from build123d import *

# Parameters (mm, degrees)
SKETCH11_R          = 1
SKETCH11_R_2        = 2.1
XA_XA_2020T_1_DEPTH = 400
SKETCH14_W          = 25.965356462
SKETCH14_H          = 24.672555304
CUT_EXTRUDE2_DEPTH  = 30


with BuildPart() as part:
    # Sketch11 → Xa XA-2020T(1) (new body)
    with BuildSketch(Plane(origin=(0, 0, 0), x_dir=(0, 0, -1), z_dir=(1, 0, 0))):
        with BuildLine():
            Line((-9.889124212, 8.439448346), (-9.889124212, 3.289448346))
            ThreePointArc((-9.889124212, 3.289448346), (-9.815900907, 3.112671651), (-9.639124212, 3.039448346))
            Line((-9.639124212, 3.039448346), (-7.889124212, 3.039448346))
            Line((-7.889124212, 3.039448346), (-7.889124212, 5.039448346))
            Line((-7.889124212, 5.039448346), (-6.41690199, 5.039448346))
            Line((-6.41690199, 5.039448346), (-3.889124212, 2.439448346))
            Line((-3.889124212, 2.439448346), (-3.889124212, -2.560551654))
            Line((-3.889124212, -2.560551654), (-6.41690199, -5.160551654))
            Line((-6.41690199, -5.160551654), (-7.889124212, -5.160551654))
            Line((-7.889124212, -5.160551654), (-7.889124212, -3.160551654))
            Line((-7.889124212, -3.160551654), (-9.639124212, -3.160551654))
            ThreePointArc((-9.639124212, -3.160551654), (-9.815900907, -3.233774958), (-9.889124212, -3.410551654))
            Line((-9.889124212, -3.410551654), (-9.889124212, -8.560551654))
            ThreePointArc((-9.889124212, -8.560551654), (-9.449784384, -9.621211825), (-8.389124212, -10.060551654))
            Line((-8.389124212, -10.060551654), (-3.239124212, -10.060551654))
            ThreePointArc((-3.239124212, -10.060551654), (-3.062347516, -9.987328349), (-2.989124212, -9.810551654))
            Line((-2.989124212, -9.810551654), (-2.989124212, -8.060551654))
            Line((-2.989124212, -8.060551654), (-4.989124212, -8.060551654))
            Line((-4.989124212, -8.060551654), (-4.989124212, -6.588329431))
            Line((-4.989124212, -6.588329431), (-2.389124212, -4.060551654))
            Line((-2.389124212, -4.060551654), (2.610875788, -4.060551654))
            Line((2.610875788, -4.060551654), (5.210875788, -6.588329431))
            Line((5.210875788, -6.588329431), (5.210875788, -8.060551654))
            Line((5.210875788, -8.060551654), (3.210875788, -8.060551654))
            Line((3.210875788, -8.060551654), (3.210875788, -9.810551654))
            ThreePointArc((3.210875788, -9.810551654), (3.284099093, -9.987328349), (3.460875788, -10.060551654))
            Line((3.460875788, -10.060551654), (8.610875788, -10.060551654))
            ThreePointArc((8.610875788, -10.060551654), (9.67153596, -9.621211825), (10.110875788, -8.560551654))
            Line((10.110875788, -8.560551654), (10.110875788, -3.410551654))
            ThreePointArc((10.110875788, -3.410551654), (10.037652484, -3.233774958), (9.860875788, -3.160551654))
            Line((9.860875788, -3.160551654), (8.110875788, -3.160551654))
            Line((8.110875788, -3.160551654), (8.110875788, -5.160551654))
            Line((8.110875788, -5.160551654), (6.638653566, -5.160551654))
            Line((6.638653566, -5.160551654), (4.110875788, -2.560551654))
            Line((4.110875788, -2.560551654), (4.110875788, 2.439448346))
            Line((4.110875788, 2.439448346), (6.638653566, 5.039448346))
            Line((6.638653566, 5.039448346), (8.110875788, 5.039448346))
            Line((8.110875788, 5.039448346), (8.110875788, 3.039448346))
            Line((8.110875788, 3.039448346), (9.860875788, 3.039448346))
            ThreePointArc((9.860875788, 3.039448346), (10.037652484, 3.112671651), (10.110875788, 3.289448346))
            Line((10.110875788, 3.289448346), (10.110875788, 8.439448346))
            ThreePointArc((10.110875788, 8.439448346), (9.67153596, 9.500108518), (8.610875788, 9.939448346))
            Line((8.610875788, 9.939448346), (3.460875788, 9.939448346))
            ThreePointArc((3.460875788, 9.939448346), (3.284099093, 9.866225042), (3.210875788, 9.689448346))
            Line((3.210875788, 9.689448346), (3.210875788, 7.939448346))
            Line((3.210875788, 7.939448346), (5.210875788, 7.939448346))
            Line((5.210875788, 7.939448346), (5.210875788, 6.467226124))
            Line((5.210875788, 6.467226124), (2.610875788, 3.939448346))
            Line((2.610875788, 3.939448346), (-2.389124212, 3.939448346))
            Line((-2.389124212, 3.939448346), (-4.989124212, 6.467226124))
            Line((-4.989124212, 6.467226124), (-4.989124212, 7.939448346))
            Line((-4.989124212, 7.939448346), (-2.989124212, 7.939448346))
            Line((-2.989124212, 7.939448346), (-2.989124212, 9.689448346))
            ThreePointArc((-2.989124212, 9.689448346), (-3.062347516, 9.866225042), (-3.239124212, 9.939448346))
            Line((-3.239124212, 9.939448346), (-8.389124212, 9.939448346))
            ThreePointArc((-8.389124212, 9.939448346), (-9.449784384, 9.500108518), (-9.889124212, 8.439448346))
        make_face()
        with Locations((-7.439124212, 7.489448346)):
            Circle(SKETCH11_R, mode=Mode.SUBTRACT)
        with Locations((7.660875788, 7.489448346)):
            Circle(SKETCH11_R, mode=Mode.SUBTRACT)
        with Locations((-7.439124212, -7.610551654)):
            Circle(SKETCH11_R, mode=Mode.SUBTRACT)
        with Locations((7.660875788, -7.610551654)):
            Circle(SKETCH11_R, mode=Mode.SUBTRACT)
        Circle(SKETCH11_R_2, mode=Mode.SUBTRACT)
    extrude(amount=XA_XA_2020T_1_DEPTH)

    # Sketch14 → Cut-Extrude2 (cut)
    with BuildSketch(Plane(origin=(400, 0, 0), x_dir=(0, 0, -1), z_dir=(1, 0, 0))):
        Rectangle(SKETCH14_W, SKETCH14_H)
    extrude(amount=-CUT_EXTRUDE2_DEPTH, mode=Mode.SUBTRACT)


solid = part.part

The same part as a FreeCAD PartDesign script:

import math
import FreeCAD as App
import Part
import Sketcher
Q = App.Units.Quantity


def add_polygon(sketch, points):
    """Adds a closed chain of lines whose ends are joined by coincident constraints."""
    first, n = sketch.GeometryCount, len(points)
    for a, b in zip(points, points[1:] + points[:1]):
        sketch.addGeometry(Part.LineSegment(App.Vector(*a, 0), App.Vector(*b, 0)), False)
    for i in range(n):
        sketch.addConstraint(Sketcher.Constraint("Coincident", first + i, 2, first + (i + 1) % n, 1))

doc = App.newDocument("Part")
body = doc.addObject("PartDesign::Body", "Body")

# Sketch on YZ plane
sketch1 = body.newObject("Sketcher::SketchObject", "Sketch")
sketch1.AttachmentSupport = (doc.getObject("YZ_Plane"), [""])
sketch1.MapMode = "FlatFace"
sketch1.addGeometry([
    Part.LineSegment(App.Vector(8.44, 9.89, 0), App.Vector(3.29, 9.89, 0)),  # 0
    Part.ArcOfCircle(Part.Circle(App.Vector(3.29, 9.64, 0), App.Vector(0, 0, 1), 0.25), math.radians(90), math.radians(180)),  # 1
    Part.LineSegment(App.Vector(3.04, 9.64, 0), App.Vector(3.04, 7.89, 0)),  # 2
    Part.LineSegment(App.Vector(3.04, 7.89, 0), App.Vector(5.04, 7.89, 0)),  # 3
    Part.LineSegment(App.Vector(5.04, 7.89, 0), App.Vector(5.04, 6.42, 0)),  # 4
    Part.LineSegment(App.Vector(5.04, 6.42, 0), App.Vector(2.44, 3.89, 0)),  # 5
    Part.LineSegment(App.Vector(2.44, 3.89, 0), App.Vector(-2.56, 3.89, 0)),  # 6
    Part.LineSegment(App.Vector(-2.56, 3.89, 0), App.Vector(-5.16, 6.42, 0)),  # 7
    Part.LineSegment(App.Vector(-5.16, 6.42, 0), App.Vector(-5.16, 7.89, 0)),  # 8
    Part.LineSegment(App.Vector(-5.16, 7.89, 0), App.Vector(-3.16, 7.89, 0)),  # 9
    Part.LineSegment(App.Vector(-3.16, 7.89, 0), App.Vector(-3.16, 9.64, 0)),  # 10
    Part.ArcOfCircle(Part.Circle(App.Vector(-3.41, 9.64, 0), App.Vector(0, 0, 1), 0.25), math.radians(0), math.radians(90)),  # 11
    Part.LineSegment(App.Vector(-3.41, 9.89, 0), App.Vector(-8.56, 9.89, 0)),  # 12
    Part.ArcOfCircle(Part.Circle(App.Vector(-8.56, 8.39, 0), App.Vector(0, 0, 1), 1.5), math.radians(90), math.radians(180)),  # 13
    Part.LineSegment(App.Vector(-10.06, 8.39, 0), App.Vector(-10.06, 3.24, 0)),  # 14
    Part.ArcOfCircle(Part.Circle(App.Vector(-9.81, 3.24, 0), App.Vector(0, 0, 1), 0.25), math.radians(180), math.radians(270)),  # 15
    Part.LineSegment(App.Vector(-9.81, 2.99, 0), App.Vector(-8.06, 2.99, 0)),  # 16
    Part.LineSegment(App.Vector(-8.06, 2.99, 0), App.Vector(-8.06, 4.99, 0)),  # 17
    Part.LineSegment(App.Vector(-8.06, 4.99, 0), App.Vector(-6.59, 4.99, 0)),  # 18
    Part.LineSegment(App.Vector(-6.59, 4.99, 0), App.Vector(-4.06, 2.39, 0)),  # 19
    Part.LineSegment(App.Vector(-4.06, 2.39, 0), App.Vector(-4.06, -2.61, 0)),  # 20
    Part.LineSegment(App.Vector(-4.06, -2.61, 0), App.Vector(-6.59, -5.21, 0)),  # 21
    Part.LineSegment(App.Vector(-6.59, -5.21, 0), App.Vector(-8.06, -5.21, 0)),  # 22
    Part.LineSegment(App.Vector(-8.06, -5.21, 0), App.Vector(-8.06, -3.21, 0)),  # 23
    Part.LineSegment(App.Vector(-8.06, -3.21, 0), App.Vector(-9.81, -3.21, 0)),  # 24
    Part.ArcOfCircle(Part.Circle(App.Vector(-9.81, -3.46, 0), App.Vector(0, 0, 1), 0.25), math.radians(90), math.radians(180)),  # 25
    Part.LineSegment(App.Vector(-10.06, -3.46, 0), App.Vector(-10.06, -8.61, 0)),  # 26
    Part.ArcOfCircle(Part.Circle(App.Vector(-8.56, -8.61, 0), App.Vector(0, 0, 1), 1.5), math.radians(-180), math.radians(-90)),  # 27
    Part.LineSegment(App.Vector(-8.56, -10.11, 0), App.Vector(-3.41, -10.11, 0)),  # 28
    Part.ArcOfCircle(Part.Circle(App.Vector(-3.41, -9.86, 0), App.Vector(0, 0, 1), 0.25), math.radians(-90), math.radians(0)),  # 29
    Part.LineSegment(App.Vector(-3.16, -9.86, 0), App.Vector(-3.16, -8.11, 0)),  # 30
    Part.LineSegment(App.Vector(-3.16, -8.11, 0), App.Vector(-5.16, -8.11, 0)),  # 31
    Part.LineSegment(App.Vector(-5.16, -8.11, 0), App.Vector(-5.16, -6.64, 0)),  # 32
    Part.LineSegment(App.Vector(-5.16, -6.64, 0), App.Vector(-2.56, -4.11, 0)),  # 33
    Part.LineSegment(App.Vector(-2.56, -4.11, 0), App.Vector(2.44, -4.11, 0)),  # 34
    Part.LineSegment(App.Vector(2.44, -4.11, 0), App.Vector(5.04, -6.64, 0)),  # 35
    Part.LineSegment(App.Vector(5.04, -6.64, 0), App.Vector(5.04, -8.11, 0)),  # 36
    Part.LineSegment(App.Vector(5.04, -8.11, 0), App.Vector(3.04, -8.11, 0)),  # 37
    Part.LineSegment(App.Vector(3.04, -8.11, 0), App.Vector(3.04, -9.86, 0)),  # 38
    Part.ArcOfCircle(Part.Circle(App.Vector(3.29, -9.86, 0), App.Vector(0, 0, 1), 0.25), math.radians(180), math.radians(270)),  # 39
    Part.LineSegment(App.Vector(3.29, -10.11, 0), App.Vector(8.44, -10.11, 0)),  # 40
    Part.ArcOfCircle(Part.Circle(App.Vector(8.44, -8.61, 0), App.Vector(0, 0, 1), 1.5), math.radians(-90), math.radians(0)),  # 41
    Part.LineSegment(App.Vector(9.94, -8.61, 0), App.Vector(9.94, -3.46, 0)),  # 42
    Part.ArcOfCircle(Part.Circle(App.Vector(9.69, -3.46, 0), App.Vector(0, 0, 1), 0.25), math.radians(0), math.radians(90)),  # 43
    Part.LineSegment(App.Vector(9.69, -3.21, 0), App.Vector(7.94, -3.21, 0)),  # 44
    Part.LineSegment(App.Vector(7.94, -3.21, 0), App.Vector(7.94, -5.21, 0)),  # 45
    Part.LineSegment(App.Vector(7.94, -5.21, 0), App.Vector(6.47, -5.21, 0)),  # 46
    Part.LineSegment(App.Vector(6.47, -5.21, 0), App.Vector(3.94, -2.61, 0)),  # 47
    Part.LineSegment(App.Vector(3.94, -2.61, 0), App.Vector(3.94, 2.39, 0)),  # 48
    Part.LineSegment(App.Vector(3.94, 2.39, 0), App.Vector(6.47, 4.99, 0)),  # 49
    Part.LineSegment(App.Vector(6.47, 4.99, 0), App.Vector(7.94, 4.99, 0)),  # 50
    Part.LineSegment(App.Vector(7.94, 4.99, 0), App.Vector(7.94, 2.99, 0)),  # 51
    Part.LineSegment(App.Vector(7.94, 2.99, 0), App.Vector(9.69, 2.99, 0)),  # 52
    Part.ArcOfCircle(Part.Circle(App.Vector(9.69, 3.24, 0), App.Vector(0, 0, 1), 0.25), math.radians(-90), math.radians(0)),  # 53
    Part.LineSegment(App.Vector(9.94, 3.24, 0), App.Vector(9.94, 8.39, 0)),  # 54
    Part.ArcOfCircle(Part.Circle(App.Vector(8.44, 8.39, 0), App.Vector(0, 0, 1), 1.5), math.radians(0), math.radians(90)),  # 55
    Part.Circle(App.Vector(-7.61, 7.44, 0), App.Vector(0, 0, 1), 1),  # 56
    Part.Circle(App.Vector(-7.61, -7.66, 0), App.Vector(0, 0, 1), 1),  # 57
    Part.Circle(App.Vector(0, 0, 0), App.Vector(0, 0, 1), 2.1),  # 58
    Part.Circle(App.Vector(7.49, 7.44, 0), App.Vector(0, 0, 1), 1),  # 59
    Part.Circle(App.Vector(7.49, -7.66, 0), App.Vector(0, 0, 1), 1),  # 60
], False)
sketch1.addConstraint([
    Sketcher.Constraint("Tangent", 0, 2, 1, 1),
    Sketcher.Constraint("Tangent", 1, 2, 2, 1),
    Sketcher.Constraint("Coincident", 2, 2, 3, 1),
    Sketcher.Constraint("Coincident", 3, 2, 4, 1),
    Sketcher.Constraint("Coincident", 4, 2, 5, 1),
    Sketcher.Constraint("Coincident", 5, 2, 6, 1),
    Sketcher.Constraint("Coincident", 6, 2, 7, 1),
    Sketcher.Constraint("Coincident", 7, 2, 8, 1),
    Sketcher.Constraint("Coincident", 8, 2, 9, 1),
    Sketcher.Constraint("Coincident", 9, 2, 10, 1),
    Sketcher.Constraint("Tangent", 10, 2, 11, 1),
    Sketcher.Constraint("Tangent", 11, 2, 12, 1),
    Sketcher.Constraint("Tangent", 12, 2, 13, 1),
    Sketcher.Constraint("Tangent", 13, 2, 14, 1),
    Sketcher.Constraint("Tangent", 14, 2, 15, 1),
    Sketcher.Constraint("Tangent", 15, 2, 16, 1),
    Sketcher.Constraint("Coincident", 16, 2, 17, 1),
    Sketcher.Constraint("Coincident", 17, 2, 18, 1),
    Sketcher.Constraint("Coincident", 18, 2, 19, 1),
    Sketcher.Constraint("Coincident", 19, 2, 20, 1),
    Sketcher.Constraint("Coincident", 20, 2, 21, 1),
    Sketcher.Constraint("Coincident", 21, 2, 22, 1),
    Sketcher.Constraint("Coincident", 22, 2, 23, 1),
    Sketcher.Constraint("Coincident", 23, 2, 24, 1),
    Sketcher.Constraint("Tangent", 24, 2, 25, 1),
    Sketcher.Constraint("Tangent", 25, 2, 26, 1),
    Sketcher.Constraint("Tangent", 26, 2, 27, 1),
    Sketcher.Constraint("Tangent", 27, 2, 28, 1),
    Sketcher.Constraint("Tangent", 28, 2, 29, 1),
    Sketcher.Constraint("Tangent", 29, 2, 30, 1),
    Sketcher.Constraint("Coincident", 30, 2, 31, 1),
    Sketcher.Constraint("Coincident", 31, 2, 32, 1),
    Sketcher.Constraint("Coincident", 32, 2, 33, 1),
    Sketcher.Constraint("Coincident", 33, 2, 34, 1),
    Sketcher.Constraint("Coincident", 34, 2, 35, 1),
    Sketcher.Constraint("Coincident", 35, 2, 36, 1),
    Sketcher.Constraint("Coincident", 36, 2, 37, 1),
    Sketcher.Constraint("Coincident", 37, 2, 38, 1),
    Sketcher.Constraint("Tangent", 38, 2, 39, 1),
    Sketcher.Constraint("Tangent", 39, 2, 40, 1),
    Sketcher.Constraint("Tangent", 40, 2, 41, 1),
    Sketcher.Constraint("Tangent", 41, 2, 42, 1),
    Sketcher.Constraint("Tangent", 42, 2, 43, 1),
    Sketcher.Constraint("Tangent", 43, 2, 44, 1),
    Sketcher.Constraint("Coincident", 44, 2, 45, 1),
    Sketcher.Constraint("Coincident", 45, 2, 46, 1),
    Sketcher.Constraint("Coincident", 46, 2, 47, 1),
    Sketcher.Constraint("Coincident", 47, 2, 48, 1),
    Sketcher.Constraint("Coincident", 48, 2, 49, 1),
    Sketcher.Constraint("Coincident", 49, 2, 50, 1),
    Sketcher.Constraint("Coincident", 50, 2, 51, 1),
    Sketcher.Constraint("Coincident", 51, 2, 52, 1),
    Sketcher.Constraint("Tangent", 52, 2, 53, 1),
    Sketcher.Constraint("Tangent", 53, 2, 54, 1),
    Sketcher.Constraint("Tangent", 54, 2, 55, 1),
    Sketcher.Constraint("Tangent", 55, 2, 0, 1),
    Sketcher.Constraint("Horizontal", 0),
    Sketcher.Constraint("Vertical", 2),
    Sketcher.Constraint("Horizontal", 3),
    Sketcher.Constraint("Vertical", 4),
    Sketcher.Constraint("Horizontal", 6),
    Sketcher.Constraint("Vertical", 8),
    Sketcher.Constraint("Horizontal", 9),
    Sketcher.Constraint("Vertical", 10),
    Sketcher.Constraint("Horizontal", 12),
    Sketcher.Constraint("Vertical", 14),
    Sketcher.Constraint("Horizontal", 16),
    Sketcher.Constraint("Vertical", 17),
    Sketcher.Constraint("Horizontal", 18),
    Sketcher.Constraint("Vertical", 20),
    Sketcher.Constraint("Horizontal", 22),
    Sketcher.Constraint("Vertical", 23),
    Sketcher.Constraint("Horizontal", 24),
    Sketcher.Constraint("Vertical", 26),
    Sketcher.Constraint("Horizontal", 28),
    Sketcher.Constraint("Vertical", 30),
    Sketcher.Constraint("Horizontal", 31),
    Sketcher.Constraint("Vertical", 32),
    Sketcher.Constraint("Horizontal", 34),
    Sketcher.Constraint("Vertical", 36),
    Sketcher.Constraint("Horizontal", 37),
    Sketcher.Constraint("Vertical", 38),
    Sketcher.Constraint("Horizontal", 40),
    Sketcher.Constraint("Vertical", 42),
    Sketcher.Constraint("Horizontal", 44),
    Sketcher.Constraint("Vertical", 45),
    Sketcher.Constraint("Horizontal", 46),
    Sketcher.Constraint("Vertical", 48),
    Sketcher.Constraint("Horizontal", 50),
    Sketcher.Constraint("Vertical", 51),
    Sketcher.Constraint("Horizontal", 52),
    Sketcher.Constraint("Vertical", 54),
    Sketcher.Constraint("Coincident", 58, 3, -1, 1),
    Sketcher.Constraint("Equal", 1, 11),
    Sketcher.Constraint("Equal", 11, 15),
    Sketcher.Constraint("Equal", 15, 25),
    Sketcher.Constraint("Equal", 13, 27),
    Sketcher.Constraint("Equal", 25, 29),
    Sketcher.Constraint("Equal", 29, 39),
    Sketcher.Constraint("Equal", 27, 41),
    Sketcher.Constraint("Equal", 39, 43),
    Sketcher.Constraint("Equal", 43, 53),
    Sketcher.Constraint("Equal", 41, 55),
    Sketcher.Constraint("Equal", 56, 57),
    Sketcher.Constraint("Equal", 57, 59),
    Sketcher.Constraint("Equal", 59, 60),
    Sketcher.Constraint("Perpendicular", 5, 19),
    Sketcher.Constraint("Perpendicular", 7, 21),
    Sketcher.Constraint("Perpendicular", 19, 33),
    Sketcher.Constraint("Perpendicular", 21, 35),
    Sketcher.Constraint("Perpendicular", 33, 47),
    Sketcher.Constraint("Perpendicular", 35, 49),
    Sketcher.Constraint("Horizontal", 1, 3, 11, 3),
    Sketcher.Constraint("Horizontal", 29, 3, 39, 3),
    Sketcher.Constraint("Horizontal", 25, 3, 43, 3),
    Sketcher.Constraint("Horizontal", 15, 3, 53, 3),
    Sketcher.Constraint("Horizontal", 56, 3, 59, 3),
    Sketcher.Constraint("Horizontal", 57, 3, 60, 3),
    Sketcher.Constraint("Horizontal", 4, 2, 7, 2),
    Sketcher.Constraint("Horizontal", 3, 2, 8, 2),
    Sketcher.Constraint("Horizontal", 32, 2, 35, 2),
    Sketcher.Constraint("Horizontal", 31, 2, 36, 2),
    Sketcher.Constraint("Horizontal", 22, 2, 45, 2),
    Sketcher.Constraint("Horizontal", 20, 2, 47, 2),
    Sketcher.Constraint("Horizontal", 19, 2, 48, 2),
    Sketcher.Constraint("Horizontal", 18, 2, 49, 2),
    Sketcher.Constraint("Vertical", 15, 3, 25, 3),
    Sketcher.Constraint("Vertical", 11, 3, 29, 3),
    Sketcher.Constraint("Vertical", 1, 3, 39, 3),
    Sketcher.Constraint("Vertical", 43, 3, 53, 3),
    Sketcher.Constraint("Vertical", 56, 3, 57, 3),
    Sketcher.Constraint("Vertical", 59, 3, 60, 3),
    Sketcher.Constraint("Vertical", 18, 2, 21, 2),
    Sketcher.Constraint("Vertical", 17, 2, 22, 2),
    Sketcher.Constraint("Vertical", 8, 2, 31, 2),
    Sketcher.Constraint("Vertical", 6, 2, 33, 2),
    Sketcher.Constraint("Vertical", 5, 2, 34, 2),
    Sketcher.Constraint("Vertical", 4, 2, 35, 2),
    Sketcher.Constraint("Vertical", 45, 2, 50, 2),
    Sketcher.Constraint("Equal", 3, 9),
    Sketcher.Constraint("Equal", 0, 12),
    Sketcher.Constraint("Equal", 24, 44),
    Sketcher.Constraint("Equal", 22, 46),
    Sketcher.Constraint("Equal", 52, 2),
    Sketcher.Constraint("Equal", 50, 4),
    Sketcher.Constraint("Equal", 40, 14),
    Sketcher.Constraint("Equal", 37, 17),
    Sketcher.Constraint("Equal", 34, 20),
    Sketcher.Constraint("Equal", 17, 23),
    Sketcher.Constraint("Equal", 14, 26),
    Sketcher.Constraint("Equal", 10, 30),
    Sketcher.Constraint("Equal", 8, 32),
    Sketcher.Constraint("Equal", 7, 19),
    Sketcher.Constraint("Diameter", 56, Q("2 mm")),
    Sketcher.Constraint("Diameter", 58, Q("4.2 mm")),
    Sketcher.Constraint("Radius", 13, Q("1.5 mm")),
    Sketcher.Constraint("DistanceX", 3, 1, 3, 2, Q("2 mm")),
    Sketcher.Constraint("DistanceX", 6, 2, 6, 1, Q("5 mm")),
    Sketcher.Constraint("Radius", 1, Q("0.25 mm")),
    Sketcher.Constraint("DistanceX", 0, 2, 0, 1, Q("5.15 mm")),
    Sketcher.Constraint("DistanceX", 16, 1, 16, 2, Q("1.75 mm")),
    Sketcher.Constraint("DistanceY", -1, 1, 4, 2, Q("6.416902 mm")),
    Sketcher.Constraint("DistanceX", 18, 1, 18, 2, Q("1.472222 mm")),
    Sketcher.Constraint("DistanceX", -1, 1, 1, 3, Q("3.289448 mm")),
    Sketcher.Constraint("DistanceX", 11, 3, -1, 1, Q("3.410552 mm")),
    Sketcher.Constraint("DistanceX", 56, 3, -1, 1, Q("7.610552 mm")),
    Sketcher.Constraint("DistanceX", -1, 1, 59, 3, Q("7.489448 mm")),
    Sketcher.Constraint("DistanceX", 19, 2, -1, 1, Q("4.060552 mm")),
    Sketcher.Constraint("DistanceY", -1, 1, 56, 3, Q("7.439124 mm")),
    Sketcher.Constraint("DistanceY", 57, 3, -1, 1, Q("7.660876 mm")),
])
pad1 = body.newObject("PartDesign::Pad", "Pad")
pad1.Profile = sketch1
pad1.Length = 400

# Sketch on YZ plane
sketch2 = body.newObject("Sketcher::SketchObject", "Sketch001")
sketch2.AttachmentSupport = (doc.getObject("YZ_Plane"), [""])
sketch2.MapMode = "FlatFace"
sketch2.AttachmentOffset = App.Placement(App.Vector(0, 0, 400), App.Rotation())
add_polygon(sketch2, [(12, 13), (-12, 13), (-12, -13), (12, -13)])  # lines 0-3
sketch2.addConstraint([
    Sketcher.Constraint("Horizontal", 0),
    Sketcher.Constraint("Vertical", 1),
    Sketcher.Constraint("Horizontal", 2),
    Sketcher.Constraint("Vertical", 3),
    Sketcher.Constraint("Symmetric", 0, 2, 2, 2, -1, 1),
    Sketcher.Constraint("DistanceX", 0, 2, 0, 1, Q("24.672555 mm")),
    Sketcher.Constraint("DistanceY", 1, 2, 1, 1, Q("25.965356 mm")),
])
pocket1 = body.newObject("PartDesign::Pocket", "Pocket")
pocket1.Profile = sketch2
pocket1.Length = 30

doc.recompute()
